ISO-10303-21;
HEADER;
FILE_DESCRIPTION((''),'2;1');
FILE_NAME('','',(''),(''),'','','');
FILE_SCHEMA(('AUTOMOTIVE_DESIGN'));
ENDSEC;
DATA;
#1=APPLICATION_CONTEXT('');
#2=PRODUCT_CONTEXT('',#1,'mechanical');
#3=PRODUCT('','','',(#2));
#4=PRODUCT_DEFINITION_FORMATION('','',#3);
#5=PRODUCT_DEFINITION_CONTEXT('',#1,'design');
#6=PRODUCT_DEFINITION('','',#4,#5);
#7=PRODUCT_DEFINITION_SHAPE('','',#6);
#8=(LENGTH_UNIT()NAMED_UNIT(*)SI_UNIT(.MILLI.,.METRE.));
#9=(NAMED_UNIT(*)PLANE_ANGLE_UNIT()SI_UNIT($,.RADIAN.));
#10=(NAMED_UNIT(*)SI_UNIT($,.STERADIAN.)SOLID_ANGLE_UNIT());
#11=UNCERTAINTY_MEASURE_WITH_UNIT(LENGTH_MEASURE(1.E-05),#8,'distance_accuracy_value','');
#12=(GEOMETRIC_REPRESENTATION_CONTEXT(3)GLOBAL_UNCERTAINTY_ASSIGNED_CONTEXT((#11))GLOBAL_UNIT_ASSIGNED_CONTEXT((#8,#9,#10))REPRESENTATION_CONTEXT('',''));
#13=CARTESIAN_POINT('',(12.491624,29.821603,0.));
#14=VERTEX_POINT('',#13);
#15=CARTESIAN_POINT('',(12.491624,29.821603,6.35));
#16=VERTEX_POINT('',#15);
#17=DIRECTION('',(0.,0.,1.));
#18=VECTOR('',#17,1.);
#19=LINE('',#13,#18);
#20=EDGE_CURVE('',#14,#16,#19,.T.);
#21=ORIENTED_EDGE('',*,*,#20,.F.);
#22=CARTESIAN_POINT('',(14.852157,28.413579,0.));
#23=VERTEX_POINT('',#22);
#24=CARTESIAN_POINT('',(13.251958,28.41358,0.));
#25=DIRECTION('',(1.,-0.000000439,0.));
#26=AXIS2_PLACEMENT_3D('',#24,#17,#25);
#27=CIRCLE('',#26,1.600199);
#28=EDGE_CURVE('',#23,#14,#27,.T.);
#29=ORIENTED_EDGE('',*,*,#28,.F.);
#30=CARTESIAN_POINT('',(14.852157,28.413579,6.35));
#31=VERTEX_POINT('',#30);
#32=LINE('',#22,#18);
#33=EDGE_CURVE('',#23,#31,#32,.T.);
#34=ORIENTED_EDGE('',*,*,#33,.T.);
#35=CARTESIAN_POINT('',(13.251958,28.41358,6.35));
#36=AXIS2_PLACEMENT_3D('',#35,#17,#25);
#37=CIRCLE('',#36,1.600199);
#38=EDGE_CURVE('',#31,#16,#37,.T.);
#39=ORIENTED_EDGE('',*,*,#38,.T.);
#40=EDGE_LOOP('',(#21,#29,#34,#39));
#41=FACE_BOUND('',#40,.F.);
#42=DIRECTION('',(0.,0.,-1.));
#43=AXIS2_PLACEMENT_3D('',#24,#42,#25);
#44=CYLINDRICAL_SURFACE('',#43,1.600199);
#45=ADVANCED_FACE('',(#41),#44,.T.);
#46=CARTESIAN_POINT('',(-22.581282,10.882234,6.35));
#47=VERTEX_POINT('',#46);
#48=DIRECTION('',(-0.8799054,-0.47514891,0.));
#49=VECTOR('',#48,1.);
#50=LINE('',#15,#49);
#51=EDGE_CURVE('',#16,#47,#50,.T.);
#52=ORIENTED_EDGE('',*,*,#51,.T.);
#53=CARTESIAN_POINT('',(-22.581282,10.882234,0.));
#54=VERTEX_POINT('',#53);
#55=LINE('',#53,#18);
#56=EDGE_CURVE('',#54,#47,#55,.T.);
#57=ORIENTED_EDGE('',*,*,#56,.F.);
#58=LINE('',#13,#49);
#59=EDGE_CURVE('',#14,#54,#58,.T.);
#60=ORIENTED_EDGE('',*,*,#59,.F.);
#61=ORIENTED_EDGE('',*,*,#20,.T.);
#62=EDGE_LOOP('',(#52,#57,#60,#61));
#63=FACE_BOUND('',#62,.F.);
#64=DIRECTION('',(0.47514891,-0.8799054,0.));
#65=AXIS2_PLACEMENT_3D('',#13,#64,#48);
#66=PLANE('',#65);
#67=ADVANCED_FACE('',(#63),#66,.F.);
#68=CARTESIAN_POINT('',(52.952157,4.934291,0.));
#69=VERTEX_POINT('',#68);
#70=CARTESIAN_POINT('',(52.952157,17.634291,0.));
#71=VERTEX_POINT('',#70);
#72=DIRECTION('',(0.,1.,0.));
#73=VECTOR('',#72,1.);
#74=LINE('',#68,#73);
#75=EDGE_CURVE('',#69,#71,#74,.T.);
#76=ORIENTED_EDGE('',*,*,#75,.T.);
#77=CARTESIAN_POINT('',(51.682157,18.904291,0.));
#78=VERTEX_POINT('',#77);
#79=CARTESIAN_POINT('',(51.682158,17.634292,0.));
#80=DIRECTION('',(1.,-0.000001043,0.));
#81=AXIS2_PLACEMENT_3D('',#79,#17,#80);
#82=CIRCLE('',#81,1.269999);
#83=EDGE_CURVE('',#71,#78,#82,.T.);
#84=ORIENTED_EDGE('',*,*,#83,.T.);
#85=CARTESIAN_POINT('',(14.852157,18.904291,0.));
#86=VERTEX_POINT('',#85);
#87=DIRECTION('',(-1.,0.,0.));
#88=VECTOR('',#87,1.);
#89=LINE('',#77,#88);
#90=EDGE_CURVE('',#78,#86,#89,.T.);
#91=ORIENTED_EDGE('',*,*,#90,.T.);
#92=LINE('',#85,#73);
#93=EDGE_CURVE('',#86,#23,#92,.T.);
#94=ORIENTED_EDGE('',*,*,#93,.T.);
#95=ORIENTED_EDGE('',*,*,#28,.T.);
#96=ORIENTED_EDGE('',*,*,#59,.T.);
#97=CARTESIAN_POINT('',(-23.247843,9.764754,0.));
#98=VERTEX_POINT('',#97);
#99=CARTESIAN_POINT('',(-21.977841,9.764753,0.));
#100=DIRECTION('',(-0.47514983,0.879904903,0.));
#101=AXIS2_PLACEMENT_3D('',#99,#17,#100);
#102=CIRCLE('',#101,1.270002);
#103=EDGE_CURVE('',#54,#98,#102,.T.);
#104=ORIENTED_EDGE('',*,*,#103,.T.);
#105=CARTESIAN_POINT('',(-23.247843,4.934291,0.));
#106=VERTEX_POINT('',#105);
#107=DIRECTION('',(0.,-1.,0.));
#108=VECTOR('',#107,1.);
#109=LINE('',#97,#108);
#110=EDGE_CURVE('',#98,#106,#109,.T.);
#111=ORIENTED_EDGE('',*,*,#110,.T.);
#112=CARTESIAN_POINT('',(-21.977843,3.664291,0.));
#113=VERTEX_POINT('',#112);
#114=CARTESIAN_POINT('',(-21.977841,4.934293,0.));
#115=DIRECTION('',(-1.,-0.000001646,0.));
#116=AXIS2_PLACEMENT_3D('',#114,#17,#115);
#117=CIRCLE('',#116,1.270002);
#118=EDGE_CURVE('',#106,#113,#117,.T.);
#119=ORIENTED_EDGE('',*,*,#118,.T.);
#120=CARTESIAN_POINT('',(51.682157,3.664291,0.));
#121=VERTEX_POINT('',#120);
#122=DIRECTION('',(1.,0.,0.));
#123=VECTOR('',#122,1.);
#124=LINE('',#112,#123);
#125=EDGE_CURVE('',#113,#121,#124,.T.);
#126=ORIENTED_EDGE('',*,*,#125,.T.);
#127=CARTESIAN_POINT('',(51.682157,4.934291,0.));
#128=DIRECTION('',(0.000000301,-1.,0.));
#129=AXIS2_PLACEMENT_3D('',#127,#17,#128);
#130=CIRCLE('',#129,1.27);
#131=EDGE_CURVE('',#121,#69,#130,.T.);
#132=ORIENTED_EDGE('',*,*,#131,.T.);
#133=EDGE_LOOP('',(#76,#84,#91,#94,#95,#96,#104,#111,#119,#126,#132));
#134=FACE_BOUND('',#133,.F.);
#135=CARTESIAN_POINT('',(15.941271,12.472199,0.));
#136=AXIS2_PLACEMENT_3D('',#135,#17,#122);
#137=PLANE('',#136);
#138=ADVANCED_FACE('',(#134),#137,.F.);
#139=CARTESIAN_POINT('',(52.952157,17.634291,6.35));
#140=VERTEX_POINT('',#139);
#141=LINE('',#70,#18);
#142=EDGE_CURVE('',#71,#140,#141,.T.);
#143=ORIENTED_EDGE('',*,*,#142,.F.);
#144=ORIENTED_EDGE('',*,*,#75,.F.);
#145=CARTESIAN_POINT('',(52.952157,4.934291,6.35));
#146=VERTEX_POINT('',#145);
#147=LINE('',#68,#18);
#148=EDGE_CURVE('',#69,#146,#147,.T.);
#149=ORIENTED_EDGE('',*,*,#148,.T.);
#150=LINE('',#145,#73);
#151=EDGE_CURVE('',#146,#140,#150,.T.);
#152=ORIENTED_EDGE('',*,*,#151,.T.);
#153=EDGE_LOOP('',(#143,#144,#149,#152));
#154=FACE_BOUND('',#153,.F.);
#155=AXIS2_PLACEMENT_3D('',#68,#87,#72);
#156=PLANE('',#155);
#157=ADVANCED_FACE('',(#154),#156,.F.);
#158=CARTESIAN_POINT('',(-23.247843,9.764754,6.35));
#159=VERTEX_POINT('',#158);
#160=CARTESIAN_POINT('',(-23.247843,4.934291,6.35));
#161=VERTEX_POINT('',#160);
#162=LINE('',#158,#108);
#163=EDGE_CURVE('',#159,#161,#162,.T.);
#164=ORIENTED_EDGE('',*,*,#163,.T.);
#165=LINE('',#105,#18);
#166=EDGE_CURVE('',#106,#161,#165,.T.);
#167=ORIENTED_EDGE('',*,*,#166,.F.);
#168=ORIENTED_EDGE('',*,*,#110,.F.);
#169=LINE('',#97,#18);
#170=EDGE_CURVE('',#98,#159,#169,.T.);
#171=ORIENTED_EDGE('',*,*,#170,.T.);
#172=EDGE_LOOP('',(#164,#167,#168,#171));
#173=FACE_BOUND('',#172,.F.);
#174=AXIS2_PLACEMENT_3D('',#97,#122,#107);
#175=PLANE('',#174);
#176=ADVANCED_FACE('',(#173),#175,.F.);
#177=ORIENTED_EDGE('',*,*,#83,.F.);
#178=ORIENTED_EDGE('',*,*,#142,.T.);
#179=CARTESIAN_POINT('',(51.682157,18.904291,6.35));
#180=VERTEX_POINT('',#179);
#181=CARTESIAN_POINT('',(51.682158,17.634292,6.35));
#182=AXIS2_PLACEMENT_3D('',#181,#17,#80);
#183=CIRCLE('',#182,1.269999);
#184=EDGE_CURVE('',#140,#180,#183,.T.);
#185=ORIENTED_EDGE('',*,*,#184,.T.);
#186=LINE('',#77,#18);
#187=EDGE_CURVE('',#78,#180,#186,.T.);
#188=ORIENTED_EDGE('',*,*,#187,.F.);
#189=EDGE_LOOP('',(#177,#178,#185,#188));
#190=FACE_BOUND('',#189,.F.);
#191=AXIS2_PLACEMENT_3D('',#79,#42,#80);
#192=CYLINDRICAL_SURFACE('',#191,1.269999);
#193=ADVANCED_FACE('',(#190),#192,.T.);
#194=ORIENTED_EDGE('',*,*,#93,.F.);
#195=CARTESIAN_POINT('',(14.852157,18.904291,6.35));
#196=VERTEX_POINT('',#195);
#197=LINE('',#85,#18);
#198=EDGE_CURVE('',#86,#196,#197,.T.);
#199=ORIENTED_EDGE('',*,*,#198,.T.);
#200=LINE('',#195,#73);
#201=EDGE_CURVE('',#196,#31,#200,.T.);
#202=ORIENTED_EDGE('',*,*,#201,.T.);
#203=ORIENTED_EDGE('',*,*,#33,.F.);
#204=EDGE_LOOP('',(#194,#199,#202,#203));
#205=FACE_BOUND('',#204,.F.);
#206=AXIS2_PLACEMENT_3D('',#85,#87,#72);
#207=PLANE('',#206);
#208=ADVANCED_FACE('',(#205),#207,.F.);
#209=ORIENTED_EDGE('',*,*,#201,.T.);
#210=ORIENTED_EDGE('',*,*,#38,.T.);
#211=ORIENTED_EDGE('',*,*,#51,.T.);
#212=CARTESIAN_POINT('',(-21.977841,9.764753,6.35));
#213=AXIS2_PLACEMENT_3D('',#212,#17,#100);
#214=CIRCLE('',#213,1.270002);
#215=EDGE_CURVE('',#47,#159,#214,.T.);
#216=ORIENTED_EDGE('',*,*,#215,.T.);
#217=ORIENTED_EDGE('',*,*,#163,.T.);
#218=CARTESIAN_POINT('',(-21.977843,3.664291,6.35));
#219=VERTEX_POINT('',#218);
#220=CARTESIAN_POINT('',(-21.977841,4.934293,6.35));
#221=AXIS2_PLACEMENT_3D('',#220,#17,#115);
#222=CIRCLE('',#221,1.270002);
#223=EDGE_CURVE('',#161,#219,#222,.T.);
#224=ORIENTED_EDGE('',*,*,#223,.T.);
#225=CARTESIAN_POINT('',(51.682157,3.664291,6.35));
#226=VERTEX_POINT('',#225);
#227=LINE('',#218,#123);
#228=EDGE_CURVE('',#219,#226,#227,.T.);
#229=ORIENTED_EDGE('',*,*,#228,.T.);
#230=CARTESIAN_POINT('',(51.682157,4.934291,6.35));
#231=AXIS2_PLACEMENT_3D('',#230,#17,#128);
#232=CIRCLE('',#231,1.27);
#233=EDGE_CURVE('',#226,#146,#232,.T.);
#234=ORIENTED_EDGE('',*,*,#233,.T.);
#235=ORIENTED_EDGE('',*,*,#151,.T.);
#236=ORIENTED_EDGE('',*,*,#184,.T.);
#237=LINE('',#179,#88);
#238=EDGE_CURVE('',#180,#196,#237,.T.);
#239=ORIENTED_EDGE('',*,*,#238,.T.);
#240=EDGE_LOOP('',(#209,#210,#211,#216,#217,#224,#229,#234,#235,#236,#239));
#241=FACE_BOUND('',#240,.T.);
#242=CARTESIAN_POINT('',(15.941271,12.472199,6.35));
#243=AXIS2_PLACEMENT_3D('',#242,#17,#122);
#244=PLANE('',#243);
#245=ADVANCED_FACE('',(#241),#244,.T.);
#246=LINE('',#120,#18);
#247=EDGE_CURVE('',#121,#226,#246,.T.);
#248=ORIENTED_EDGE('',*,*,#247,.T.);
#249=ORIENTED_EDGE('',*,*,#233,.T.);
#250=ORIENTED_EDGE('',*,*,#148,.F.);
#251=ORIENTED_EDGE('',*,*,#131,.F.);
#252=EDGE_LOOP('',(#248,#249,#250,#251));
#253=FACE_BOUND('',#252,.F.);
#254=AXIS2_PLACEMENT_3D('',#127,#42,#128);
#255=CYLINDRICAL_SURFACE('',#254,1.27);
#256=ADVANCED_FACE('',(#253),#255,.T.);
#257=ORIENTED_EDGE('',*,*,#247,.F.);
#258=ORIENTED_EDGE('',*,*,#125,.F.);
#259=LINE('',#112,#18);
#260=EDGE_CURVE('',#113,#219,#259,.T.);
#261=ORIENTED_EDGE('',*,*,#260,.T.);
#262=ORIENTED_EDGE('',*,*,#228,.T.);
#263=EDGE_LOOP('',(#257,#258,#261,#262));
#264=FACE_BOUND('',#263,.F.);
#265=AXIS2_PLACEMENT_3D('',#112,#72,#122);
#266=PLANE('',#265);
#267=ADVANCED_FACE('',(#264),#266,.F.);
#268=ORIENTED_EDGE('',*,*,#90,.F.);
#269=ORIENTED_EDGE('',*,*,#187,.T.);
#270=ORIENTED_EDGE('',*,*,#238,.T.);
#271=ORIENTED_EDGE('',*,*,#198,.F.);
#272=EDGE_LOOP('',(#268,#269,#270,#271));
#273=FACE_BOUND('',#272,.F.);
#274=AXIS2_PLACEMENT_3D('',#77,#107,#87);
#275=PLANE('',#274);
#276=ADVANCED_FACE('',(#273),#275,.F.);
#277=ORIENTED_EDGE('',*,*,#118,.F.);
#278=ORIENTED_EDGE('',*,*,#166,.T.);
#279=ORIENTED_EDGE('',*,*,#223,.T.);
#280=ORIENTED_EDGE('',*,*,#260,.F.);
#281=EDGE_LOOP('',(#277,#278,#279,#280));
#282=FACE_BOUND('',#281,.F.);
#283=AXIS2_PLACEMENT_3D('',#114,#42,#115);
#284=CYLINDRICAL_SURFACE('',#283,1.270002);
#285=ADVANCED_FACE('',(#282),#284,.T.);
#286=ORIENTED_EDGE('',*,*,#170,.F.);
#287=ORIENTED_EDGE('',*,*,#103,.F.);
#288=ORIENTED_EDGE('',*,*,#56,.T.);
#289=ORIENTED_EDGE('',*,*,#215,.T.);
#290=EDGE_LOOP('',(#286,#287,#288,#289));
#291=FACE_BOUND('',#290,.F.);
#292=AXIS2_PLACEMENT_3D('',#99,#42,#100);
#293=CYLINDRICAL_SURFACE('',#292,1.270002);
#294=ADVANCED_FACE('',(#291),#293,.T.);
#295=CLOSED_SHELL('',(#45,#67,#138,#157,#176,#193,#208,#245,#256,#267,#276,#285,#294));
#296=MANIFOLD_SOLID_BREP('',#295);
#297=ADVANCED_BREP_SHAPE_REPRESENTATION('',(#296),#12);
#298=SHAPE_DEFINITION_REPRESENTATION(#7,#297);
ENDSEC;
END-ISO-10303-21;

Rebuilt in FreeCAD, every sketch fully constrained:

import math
import FreeCAD as App
import Part
import Sketcher
Q = App.Units.Quantity

doc = App.newDocument("Part")
body = doc.addObject("PartDesign::Body", "Body")

sketch1 = doc.addObject("Sketcher::SketchObject", "Sketch")
body.addObject(sketch1)
sketch1.AttachmentSupport = (doc.XY_Plane, [""])
sketch1.MapMode = "FlatFace"
sketch1.addGeometry(Part.ArcOfCircle(Part.Circle(App.Vector(51.7, 17.6, 0), App.Vector(0, 0, 1), 1.3), math.radians(0), math.radians(90)), False)
sketch1.addGeometry(Part.LineSegment(App.Vector(51.7, 18.9, 0), App.Vector(14.9, 18.9, 0)), False)
sketch1.addGeometry(Part.LineSegment(App.Vector(14.9, 18.9, 0), App.Vector(14.9, 28.4, 0)), False)
sketch1.addGeometry(Part.ArcOfCircle(Part.Circle(App.Vector(13.3, 28.4, 0), App.Vector(0, 0, 1), 1.6), math.radians(0), math.radians(118)), False)
sketch1.addGeometry(Part.LineSegment(App.Vector(12.5, 29.8, 0), App.Vector(-22.6, 10.9, 0)), False)
sketch1.addGeometry(Part.ArcOfCircle(Part.Circle(App.Vector(-22, 9.8, 0), App.Vector(0, 0, 1), 1.3), math.radians(118), math.radians(180)), False)
sketch1.addGeometry(Part.LineSegment(App.Vector(-23.2, 9.8, 0), App.Vector(-23.2, 4.9, 0)), False)
sketch1.addGeometry(Part.ArcOfCircle(Part.Circle(App.Vector(-22, 4.9, 0), App.Vector(0, 0, 1), 1.3), math.radians(-180), math.radians(-90)), False)
sketch1.addGeometry(Part.LineSegment(App.Vector(-22, 3.7, 0), App.Vector(51.7, 3.7, 0)), False)
sketch1.addGeometry(Part.ArcOfCircle(Part.Circle(App.Vector(51.7, 4.9, 0), App.Vector(0, 0, 1), 1.3), math.radians(-90), math.radians(0)), False)
sketch1.addGeometry(Part.LineSegment(App.Vector(53, 4.9, 0), App.Vector(53, 17.6, 0)), False)
sketch1.addConstraint(Sketcher.Constraint("Tangent", 0, 2, 1, 1))
sketch1.addConstraint(Sketcher.Constraint("Coincident", 1, 2, 2, 1))
sketch1.addConstraint(Sketcher.Constraint("Tangent", 2, 2, 3, 1))
sketch1.addConstraint(Sketcher.Constraint("Tangent", 3, 2, 4, 1))
sketch1.addConstraint(Sketcher.Constraint("Tangent", 4, 2, 5, 1))
sketch1.addConstraint(Sketcher.Constraint("Tangent", 5, 2, 6, 1))
sketch1.addConstraint(Sketcher.Constraint("Tangent", 6, 2, 7, 1))
sketch1.addConstraint(Sketcher.Constraint("Tangent", 7, 2, 8, 1))
sketch1.addConstraint(Sketcher.Constraint("Tangent", 8, 2, 9, 1))
sketch1.addConstraint(Sketcher.Constraint("Tangent", 9, 2, 10, 1))
sketch1.addConstraint(Sketcher.Constraint("Tangent", 10, 2, 0, 1))
sketch1.addConstraint(Sketcher.Constraint("Horizontal", 1))
sketch1.addConstraint(Sketcher.Constraint("Vertical", 2))
sketch1.addConstraint(Sketcher.Constraint("Vertical", 6))
sketch1.addConstraint(Sketcher.Constraint("Horizontal", 8))
sketch1.addConstraint(Sketcher.Constraint("Vertical", 10))
sketch1.addConstraint(Sketcher.Constraint("Equal", 5, 7))
sketch1.addConstraint(Sketcher.Constraint("Equal", 7, 9))
sketch1.addConstraint(Sketcher.Constraint("Vertical", 0, 3, 9, 3))
sketch1.addConstraint(Sketcher.Constraint("Radius", 0, Q("0.0499999 in")))
sketch1.addConstraint(Sketcher.Constraint("DistanceX", 8, 1, 8, 2, Q("2.9 in")))
sketch1.addConstraint(Sketcher.Constraint("DistanceY", 10, 1, 10, 2, Q("0.5 in")))
sketch1.addConstraint(Sketcher.Constraint("Radius", 3, Q("0.063 in")))
sketch1.addConstraint(Sketcher.Constraint("DistanceX", 1, 2, 1, 1, Q("1.45 in")))
sketch1.addConstraint(Sketcher.Constraint("Distance", 4, 39.85986))
sketch1.addConstraint(Sketcher.Constraint("DistanceY", 2, 1, 2, 2, 9.509288))
sketch1.addConstraint(Sketcher.Constraint("DistanceX", -1, 1, 0, 3, 51.682158))
sketch1.addConstraint(Sketcher.Constraint("DistanceY", -1, 1, 3, 3, 28.41358))
pad1 = doc.addObject("PartDesign::Pad", "Pad")
body.addObject(pad1)
pad1.Profile = sketch1
pad1.Length = Q("0.25 in")

doc.recompute()
